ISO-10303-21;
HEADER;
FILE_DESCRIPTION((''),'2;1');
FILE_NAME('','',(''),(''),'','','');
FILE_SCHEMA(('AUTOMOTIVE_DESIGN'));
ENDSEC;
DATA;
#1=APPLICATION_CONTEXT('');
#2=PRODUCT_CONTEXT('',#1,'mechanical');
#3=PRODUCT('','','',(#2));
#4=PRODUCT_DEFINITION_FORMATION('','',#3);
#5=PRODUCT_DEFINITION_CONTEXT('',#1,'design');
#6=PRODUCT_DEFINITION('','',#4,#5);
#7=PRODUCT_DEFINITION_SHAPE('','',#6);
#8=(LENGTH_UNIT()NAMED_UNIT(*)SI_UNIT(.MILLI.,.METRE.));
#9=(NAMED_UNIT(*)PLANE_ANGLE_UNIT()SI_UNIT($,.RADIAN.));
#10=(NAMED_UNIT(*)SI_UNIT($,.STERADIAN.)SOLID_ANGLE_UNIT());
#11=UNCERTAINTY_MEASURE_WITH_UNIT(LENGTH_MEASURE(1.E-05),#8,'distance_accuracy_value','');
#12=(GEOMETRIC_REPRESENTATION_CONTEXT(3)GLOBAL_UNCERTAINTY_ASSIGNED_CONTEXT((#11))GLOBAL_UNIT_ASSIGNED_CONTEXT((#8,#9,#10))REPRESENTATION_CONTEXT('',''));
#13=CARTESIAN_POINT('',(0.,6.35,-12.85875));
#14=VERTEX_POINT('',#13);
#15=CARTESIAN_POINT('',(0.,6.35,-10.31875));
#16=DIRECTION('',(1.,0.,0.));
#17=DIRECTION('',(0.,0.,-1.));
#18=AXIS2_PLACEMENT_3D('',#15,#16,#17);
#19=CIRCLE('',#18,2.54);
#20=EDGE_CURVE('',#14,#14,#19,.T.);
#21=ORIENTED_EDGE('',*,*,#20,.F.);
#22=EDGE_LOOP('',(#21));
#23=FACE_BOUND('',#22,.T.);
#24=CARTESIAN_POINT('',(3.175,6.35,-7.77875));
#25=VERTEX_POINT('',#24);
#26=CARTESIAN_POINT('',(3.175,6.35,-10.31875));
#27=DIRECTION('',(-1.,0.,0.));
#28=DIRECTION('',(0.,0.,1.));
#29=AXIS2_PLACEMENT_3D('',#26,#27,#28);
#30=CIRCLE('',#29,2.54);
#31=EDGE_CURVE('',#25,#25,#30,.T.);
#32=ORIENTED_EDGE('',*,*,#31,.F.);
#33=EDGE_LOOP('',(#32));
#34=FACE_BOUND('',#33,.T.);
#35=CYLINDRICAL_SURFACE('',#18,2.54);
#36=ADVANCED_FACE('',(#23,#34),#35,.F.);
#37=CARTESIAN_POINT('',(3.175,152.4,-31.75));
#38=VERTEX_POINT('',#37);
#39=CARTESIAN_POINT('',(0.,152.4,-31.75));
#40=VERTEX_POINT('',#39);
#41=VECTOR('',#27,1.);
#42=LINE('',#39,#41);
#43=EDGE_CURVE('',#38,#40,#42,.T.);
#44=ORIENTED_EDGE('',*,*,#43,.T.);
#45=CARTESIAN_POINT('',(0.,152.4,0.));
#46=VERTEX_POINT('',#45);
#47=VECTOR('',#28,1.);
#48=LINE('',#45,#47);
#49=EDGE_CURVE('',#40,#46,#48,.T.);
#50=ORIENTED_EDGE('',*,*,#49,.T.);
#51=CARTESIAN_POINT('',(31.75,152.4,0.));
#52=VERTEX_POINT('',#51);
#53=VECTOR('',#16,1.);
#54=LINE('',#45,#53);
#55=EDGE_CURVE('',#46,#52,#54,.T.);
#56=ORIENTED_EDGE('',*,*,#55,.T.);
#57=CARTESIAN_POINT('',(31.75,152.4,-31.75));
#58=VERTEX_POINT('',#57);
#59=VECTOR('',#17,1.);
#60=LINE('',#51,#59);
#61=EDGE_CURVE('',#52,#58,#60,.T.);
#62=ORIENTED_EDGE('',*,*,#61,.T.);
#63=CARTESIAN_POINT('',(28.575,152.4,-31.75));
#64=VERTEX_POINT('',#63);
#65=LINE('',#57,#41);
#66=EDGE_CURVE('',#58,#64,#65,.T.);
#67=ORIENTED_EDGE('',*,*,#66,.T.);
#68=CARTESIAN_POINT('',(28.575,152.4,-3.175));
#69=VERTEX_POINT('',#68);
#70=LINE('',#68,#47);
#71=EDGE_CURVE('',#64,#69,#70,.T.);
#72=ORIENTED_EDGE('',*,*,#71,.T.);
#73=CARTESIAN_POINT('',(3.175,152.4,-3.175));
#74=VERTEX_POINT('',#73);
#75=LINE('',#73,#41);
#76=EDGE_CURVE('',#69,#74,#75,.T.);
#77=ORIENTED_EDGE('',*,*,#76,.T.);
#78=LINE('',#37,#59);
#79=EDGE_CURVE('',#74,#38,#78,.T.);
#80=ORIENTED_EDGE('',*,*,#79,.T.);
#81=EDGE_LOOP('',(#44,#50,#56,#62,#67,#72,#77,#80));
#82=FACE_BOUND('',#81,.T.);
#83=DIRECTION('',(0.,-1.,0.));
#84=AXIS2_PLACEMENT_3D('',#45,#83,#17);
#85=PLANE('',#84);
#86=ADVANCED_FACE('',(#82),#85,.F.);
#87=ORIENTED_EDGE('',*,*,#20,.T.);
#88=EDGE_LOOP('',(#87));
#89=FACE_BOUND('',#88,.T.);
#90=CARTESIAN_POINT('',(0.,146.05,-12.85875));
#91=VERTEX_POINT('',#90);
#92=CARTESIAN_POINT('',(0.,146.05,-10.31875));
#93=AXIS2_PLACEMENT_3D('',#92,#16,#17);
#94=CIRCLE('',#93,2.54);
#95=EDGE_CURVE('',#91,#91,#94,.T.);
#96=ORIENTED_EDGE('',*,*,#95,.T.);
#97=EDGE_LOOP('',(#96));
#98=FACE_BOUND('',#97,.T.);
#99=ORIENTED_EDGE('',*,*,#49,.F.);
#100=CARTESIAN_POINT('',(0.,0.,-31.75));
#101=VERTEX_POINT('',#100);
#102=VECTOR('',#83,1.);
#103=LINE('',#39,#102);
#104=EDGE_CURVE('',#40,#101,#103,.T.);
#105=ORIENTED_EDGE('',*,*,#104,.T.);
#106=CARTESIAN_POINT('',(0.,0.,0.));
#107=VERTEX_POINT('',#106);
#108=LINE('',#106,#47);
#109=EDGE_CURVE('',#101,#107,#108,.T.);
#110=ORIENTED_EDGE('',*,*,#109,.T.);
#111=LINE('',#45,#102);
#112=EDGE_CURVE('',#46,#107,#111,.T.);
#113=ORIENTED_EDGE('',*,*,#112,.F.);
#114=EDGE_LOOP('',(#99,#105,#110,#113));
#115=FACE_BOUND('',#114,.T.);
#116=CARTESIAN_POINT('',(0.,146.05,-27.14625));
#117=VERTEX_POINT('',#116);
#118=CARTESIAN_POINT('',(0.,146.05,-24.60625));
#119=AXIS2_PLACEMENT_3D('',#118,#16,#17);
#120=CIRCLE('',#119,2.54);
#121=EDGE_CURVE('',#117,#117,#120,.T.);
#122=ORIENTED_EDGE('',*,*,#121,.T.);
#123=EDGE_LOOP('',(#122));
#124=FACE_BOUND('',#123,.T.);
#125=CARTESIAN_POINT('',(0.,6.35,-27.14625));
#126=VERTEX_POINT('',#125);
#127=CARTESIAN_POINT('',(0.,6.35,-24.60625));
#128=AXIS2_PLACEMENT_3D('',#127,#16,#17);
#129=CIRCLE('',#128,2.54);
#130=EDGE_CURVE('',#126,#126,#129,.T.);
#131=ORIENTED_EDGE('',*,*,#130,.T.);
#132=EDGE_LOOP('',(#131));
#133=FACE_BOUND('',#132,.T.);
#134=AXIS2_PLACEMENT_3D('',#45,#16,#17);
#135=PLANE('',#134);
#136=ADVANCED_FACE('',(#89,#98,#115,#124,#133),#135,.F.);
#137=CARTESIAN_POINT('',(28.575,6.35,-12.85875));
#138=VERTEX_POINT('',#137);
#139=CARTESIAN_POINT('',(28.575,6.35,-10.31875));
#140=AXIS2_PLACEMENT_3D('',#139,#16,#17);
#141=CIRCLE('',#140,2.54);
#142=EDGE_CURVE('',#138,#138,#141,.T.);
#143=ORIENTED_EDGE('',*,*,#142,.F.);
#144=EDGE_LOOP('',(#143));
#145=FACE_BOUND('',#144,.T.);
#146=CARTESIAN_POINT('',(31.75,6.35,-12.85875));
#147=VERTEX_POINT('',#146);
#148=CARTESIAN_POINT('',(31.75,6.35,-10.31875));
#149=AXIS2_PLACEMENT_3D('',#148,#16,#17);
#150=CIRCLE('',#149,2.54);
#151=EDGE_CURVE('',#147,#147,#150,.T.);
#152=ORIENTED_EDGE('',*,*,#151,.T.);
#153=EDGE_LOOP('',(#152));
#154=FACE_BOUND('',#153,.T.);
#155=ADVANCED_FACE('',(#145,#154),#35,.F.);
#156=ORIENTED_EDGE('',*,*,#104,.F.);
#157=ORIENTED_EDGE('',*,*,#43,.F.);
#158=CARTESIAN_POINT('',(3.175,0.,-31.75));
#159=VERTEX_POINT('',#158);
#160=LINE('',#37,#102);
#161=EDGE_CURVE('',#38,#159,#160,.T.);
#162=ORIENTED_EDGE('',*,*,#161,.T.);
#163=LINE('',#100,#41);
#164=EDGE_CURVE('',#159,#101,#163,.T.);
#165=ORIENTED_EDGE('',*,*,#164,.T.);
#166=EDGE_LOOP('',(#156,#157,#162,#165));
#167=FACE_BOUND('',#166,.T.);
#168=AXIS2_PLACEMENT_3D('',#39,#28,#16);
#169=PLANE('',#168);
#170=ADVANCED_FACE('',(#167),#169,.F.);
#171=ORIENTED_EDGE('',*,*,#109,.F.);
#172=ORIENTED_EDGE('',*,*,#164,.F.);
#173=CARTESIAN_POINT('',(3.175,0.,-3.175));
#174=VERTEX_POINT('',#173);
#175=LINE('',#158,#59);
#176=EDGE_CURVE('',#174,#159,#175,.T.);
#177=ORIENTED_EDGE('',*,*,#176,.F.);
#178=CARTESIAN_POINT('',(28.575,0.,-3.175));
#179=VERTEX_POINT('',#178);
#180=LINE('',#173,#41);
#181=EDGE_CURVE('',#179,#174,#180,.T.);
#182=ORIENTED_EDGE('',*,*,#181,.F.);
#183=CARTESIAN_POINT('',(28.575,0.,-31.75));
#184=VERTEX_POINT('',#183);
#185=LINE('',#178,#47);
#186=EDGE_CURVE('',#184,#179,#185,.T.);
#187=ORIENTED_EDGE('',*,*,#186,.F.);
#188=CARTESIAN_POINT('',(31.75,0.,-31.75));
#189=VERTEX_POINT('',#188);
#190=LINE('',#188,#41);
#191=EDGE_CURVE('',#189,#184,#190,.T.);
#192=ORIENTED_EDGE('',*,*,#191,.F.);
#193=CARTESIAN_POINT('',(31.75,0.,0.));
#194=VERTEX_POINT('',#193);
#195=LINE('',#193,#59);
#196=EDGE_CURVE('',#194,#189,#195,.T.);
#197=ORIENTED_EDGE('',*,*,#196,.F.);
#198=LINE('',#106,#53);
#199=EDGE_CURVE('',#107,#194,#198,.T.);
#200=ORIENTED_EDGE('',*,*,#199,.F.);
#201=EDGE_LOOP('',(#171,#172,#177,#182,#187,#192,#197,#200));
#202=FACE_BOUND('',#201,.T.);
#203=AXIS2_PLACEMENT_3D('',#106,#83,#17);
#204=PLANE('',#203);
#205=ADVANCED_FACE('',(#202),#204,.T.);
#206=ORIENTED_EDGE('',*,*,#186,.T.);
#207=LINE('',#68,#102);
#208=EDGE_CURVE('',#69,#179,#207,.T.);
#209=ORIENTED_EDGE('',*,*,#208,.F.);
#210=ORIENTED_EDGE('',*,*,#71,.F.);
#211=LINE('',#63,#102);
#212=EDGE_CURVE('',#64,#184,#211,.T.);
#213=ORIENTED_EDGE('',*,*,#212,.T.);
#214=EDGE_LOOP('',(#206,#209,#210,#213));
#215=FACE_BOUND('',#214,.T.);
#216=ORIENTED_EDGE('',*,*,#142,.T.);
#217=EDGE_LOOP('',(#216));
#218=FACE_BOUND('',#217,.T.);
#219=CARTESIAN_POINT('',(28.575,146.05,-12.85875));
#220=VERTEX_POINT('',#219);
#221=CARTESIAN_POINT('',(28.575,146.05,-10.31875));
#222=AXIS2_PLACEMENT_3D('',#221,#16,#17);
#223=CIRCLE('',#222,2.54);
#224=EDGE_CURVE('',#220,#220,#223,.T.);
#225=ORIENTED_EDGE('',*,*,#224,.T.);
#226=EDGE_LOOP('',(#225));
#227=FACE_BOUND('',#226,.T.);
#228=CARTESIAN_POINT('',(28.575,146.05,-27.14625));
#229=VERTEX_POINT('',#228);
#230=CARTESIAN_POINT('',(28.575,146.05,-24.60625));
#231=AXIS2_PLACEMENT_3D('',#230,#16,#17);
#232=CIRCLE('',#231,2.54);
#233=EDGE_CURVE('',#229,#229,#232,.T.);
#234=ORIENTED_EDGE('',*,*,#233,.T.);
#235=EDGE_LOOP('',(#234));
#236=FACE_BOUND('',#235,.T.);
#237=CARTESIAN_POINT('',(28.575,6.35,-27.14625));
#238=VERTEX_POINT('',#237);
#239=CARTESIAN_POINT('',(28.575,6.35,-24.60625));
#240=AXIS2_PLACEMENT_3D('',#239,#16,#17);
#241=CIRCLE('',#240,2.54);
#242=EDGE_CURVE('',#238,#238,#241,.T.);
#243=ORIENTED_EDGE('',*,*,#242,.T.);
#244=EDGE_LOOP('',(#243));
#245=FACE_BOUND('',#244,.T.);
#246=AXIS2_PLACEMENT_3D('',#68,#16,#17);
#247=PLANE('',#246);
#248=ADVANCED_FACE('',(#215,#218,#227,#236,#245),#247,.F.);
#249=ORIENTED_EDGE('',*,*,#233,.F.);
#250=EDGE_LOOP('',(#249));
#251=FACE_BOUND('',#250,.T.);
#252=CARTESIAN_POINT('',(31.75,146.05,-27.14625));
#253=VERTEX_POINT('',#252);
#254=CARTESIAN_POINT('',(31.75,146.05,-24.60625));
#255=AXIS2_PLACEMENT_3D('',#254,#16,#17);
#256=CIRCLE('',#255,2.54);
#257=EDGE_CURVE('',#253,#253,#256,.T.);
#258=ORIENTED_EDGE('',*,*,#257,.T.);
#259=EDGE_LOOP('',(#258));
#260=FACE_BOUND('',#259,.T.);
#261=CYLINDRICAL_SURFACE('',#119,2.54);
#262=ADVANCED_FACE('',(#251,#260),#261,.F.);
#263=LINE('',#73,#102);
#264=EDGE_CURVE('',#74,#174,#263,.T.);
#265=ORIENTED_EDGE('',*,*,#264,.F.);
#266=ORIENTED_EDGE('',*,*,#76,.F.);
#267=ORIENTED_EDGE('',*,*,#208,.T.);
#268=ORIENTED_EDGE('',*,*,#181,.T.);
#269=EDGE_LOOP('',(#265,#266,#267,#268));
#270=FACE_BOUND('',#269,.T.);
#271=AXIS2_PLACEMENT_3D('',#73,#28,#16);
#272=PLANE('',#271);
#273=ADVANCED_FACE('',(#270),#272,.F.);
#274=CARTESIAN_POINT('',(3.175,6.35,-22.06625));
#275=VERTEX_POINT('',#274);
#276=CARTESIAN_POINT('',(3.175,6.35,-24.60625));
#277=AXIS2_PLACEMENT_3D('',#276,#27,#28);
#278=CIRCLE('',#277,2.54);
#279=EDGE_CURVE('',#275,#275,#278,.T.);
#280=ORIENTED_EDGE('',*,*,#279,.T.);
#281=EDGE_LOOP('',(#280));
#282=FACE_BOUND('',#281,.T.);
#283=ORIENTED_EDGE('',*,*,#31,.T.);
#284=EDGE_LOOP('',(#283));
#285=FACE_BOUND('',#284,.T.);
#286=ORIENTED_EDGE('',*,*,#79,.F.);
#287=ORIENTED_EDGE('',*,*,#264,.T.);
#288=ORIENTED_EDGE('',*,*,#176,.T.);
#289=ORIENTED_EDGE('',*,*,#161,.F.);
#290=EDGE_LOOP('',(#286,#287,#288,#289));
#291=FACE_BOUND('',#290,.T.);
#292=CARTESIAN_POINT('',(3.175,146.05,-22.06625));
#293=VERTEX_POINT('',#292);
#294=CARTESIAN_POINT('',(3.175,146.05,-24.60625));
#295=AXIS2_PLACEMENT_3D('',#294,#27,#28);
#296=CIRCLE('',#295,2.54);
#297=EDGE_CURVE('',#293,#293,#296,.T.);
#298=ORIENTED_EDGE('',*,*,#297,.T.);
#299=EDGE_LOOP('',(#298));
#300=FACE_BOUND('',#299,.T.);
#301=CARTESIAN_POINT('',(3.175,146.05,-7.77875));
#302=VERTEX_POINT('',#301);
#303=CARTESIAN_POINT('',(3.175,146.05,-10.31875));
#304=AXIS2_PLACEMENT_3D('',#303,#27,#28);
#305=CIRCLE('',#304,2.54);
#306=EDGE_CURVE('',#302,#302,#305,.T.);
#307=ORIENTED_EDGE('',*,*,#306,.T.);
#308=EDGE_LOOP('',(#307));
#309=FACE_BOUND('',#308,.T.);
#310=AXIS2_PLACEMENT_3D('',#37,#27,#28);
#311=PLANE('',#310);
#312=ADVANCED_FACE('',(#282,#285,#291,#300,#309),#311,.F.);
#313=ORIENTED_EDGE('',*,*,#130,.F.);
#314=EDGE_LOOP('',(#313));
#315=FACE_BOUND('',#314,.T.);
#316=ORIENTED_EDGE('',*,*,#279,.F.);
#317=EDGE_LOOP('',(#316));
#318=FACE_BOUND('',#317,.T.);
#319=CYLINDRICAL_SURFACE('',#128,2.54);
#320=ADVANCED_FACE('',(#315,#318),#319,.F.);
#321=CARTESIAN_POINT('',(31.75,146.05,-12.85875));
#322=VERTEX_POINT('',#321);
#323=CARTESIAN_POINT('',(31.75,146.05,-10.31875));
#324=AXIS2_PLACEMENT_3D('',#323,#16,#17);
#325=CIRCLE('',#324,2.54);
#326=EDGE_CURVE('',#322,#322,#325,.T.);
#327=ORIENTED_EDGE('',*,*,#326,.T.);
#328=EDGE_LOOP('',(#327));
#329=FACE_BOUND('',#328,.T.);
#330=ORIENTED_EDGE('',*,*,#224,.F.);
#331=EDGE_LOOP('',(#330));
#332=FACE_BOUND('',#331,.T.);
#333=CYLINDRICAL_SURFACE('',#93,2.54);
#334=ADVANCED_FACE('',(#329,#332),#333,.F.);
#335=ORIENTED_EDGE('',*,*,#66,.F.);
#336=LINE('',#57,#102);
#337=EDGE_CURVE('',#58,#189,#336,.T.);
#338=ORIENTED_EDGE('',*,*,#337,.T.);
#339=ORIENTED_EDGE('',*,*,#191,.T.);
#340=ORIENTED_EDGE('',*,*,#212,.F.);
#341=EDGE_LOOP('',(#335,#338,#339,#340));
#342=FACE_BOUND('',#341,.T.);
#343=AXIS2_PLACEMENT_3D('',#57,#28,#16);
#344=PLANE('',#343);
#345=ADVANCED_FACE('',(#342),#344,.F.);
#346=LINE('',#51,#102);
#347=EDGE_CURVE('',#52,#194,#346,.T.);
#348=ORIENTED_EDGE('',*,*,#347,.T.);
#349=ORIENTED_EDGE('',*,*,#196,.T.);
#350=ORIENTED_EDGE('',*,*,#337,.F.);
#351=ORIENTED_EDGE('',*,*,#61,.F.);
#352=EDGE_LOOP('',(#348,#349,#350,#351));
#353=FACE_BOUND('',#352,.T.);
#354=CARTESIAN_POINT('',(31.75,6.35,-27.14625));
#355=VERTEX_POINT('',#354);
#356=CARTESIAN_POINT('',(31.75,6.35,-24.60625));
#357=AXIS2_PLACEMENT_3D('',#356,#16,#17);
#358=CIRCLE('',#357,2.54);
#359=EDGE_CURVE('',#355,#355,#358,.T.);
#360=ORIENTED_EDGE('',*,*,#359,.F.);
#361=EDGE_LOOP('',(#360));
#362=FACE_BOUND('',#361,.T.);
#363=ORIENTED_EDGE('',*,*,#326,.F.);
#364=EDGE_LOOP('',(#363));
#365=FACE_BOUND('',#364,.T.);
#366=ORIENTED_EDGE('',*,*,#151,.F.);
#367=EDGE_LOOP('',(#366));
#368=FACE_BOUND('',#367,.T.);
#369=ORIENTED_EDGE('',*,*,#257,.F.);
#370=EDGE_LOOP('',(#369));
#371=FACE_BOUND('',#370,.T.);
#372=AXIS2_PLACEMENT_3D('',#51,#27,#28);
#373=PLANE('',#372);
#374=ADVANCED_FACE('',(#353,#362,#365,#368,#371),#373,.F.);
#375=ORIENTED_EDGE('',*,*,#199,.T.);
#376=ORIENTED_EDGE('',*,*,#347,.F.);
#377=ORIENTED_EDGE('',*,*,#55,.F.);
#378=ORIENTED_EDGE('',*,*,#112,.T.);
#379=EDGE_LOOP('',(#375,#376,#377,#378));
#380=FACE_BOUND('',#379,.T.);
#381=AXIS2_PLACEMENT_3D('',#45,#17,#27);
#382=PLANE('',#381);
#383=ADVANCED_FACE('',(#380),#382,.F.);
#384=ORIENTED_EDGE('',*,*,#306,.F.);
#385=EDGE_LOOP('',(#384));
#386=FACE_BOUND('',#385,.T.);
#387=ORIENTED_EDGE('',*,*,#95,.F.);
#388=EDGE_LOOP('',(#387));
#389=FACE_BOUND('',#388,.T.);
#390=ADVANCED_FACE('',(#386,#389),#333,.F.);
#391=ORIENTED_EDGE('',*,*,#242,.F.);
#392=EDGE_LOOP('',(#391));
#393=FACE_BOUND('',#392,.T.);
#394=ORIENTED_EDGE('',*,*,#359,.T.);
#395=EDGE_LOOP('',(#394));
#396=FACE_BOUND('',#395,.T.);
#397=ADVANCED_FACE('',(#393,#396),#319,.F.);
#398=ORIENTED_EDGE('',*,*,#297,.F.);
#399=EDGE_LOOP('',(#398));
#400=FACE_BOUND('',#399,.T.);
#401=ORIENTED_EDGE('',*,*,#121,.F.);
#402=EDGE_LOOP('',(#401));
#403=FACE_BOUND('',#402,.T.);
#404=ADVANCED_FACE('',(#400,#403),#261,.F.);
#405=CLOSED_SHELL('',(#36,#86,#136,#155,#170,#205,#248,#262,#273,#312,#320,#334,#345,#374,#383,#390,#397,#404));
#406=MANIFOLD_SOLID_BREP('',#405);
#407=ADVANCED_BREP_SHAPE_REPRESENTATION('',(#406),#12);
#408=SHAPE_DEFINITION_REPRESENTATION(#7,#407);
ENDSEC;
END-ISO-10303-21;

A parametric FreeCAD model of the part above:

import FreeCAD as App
import Part
import Sketcher
Q = App.Units.Quantity

doc = App.newDocument("Part")
body = doc.addObject("PartDesign::Body", "Body")

# Sketch on XZ plane
sketch1 = body.newObject("Sketcher::SketchObject", "Sketch")
sketch1.AttachmentSupport = (doc.getObject("XZ_Plane"), [""])
sketch1.MapMode = "FlatFace"
sketch1.addGeometry(Part.LineSegment(App.Vector(0, 0, 0), App.Vector(31.75, 0, 0)), False)
sketch1.addGeometry(Part.LineSegment(App.Vector(31.75, 0, 0), App.Vector(31.75, -31.75, 0)), False)
sketch1.addGeometry(Part.LineSegment(App.Vector(31.75, -31.75, 0), App.Vector(28.575, -31.75, 0)), False)
sketch1.addGeometry(Part.LineSegment(App.Vector(28.575, -31.75, 0), App.Vector(28.575, -3.175, 0)), False)
sketch1.addGeometry(Part.LineSegment(App.Vector(28.575, -3.175, 0), App.Vector(3.175, -3.175, 0)), False)
sketch1.addGeometry(Part.LineSegment(App.Vector(3.175, -3.175, 0), App.Vector(3.175, -31.75, 0)), False)
sketch1.addGeometry(Part.LineSegment(App.Vector(3.175, -31.75, 0), App.Vector(0, -31.75, 0)), False)
sketch1.addGeometry(Part.LineSegment(App.Vector(0, -31.75, 0), App.Vector(0, 0, 0)), False)
sketch1.addConstraint(Sketcher.Constraint("Coincident", 0, 2, 1, 1))
sketch1.addConstraint(Sketcher.Constraint("Coincident", 1, 2, 2, 1))
sketch1.addConstraint(Sketcher.Constraint("Coincident", 2, 2, 3, 1))
sketch1.addConstraint(Sketcher.Constraint("Coincident", 3, 2, 4, 1))
sketch1.addConstraint(Sketcher.Constraint("Coincident", 4, 2, 5, 1))
sketch1.addConstraint(Sketcher.Constraint("Coincident", 5, 2, 6, 1))
sketch1.addConstraint(Sketcher.Constraint("Coincident", 6, 2, 7, 1))
sketch1.addConstraint(Sketcher.Constraint("Coincident", 7, 2, 0, 1))
sketch1.addConstraint(Sketcher.Constraint("Horizontal", 0))
sketch1.addConstraint(Sketcher.Constraint("Vertical", 1))
sketch1.addConstraint(Sketcher.Constraint("Horizontal", 2))
sketch1.addConstraint(Sketcher.Constraint("Vertical", 3))
sketch1.addConstraint(Sketcher.Constraint("Horizontal", 4))
sketch1.addConstraint(Sketcher.Constraint("Vertical", 5))
sketch1.addConstraint(Sketcher.Constraint("Horizontal", 6))
sketch1.addConstraint(Sketcher.Constraint("Vertical", 7))
sketch1.addConstraint(Sketcher.Constraint("Coincident", 7, 2, -1, 1))
sketch1.addConstraint(Sketcher.Constraint("Horizontal", 2, 2, 5, 2))
sketch1.addConstraint(Sketcher.Constraint("Equal", 2, 6))
sketch1.addConstraint(Sketcher.Constraint("Equal", 0, 1))
sketch1.addConstraint(Sketcher.Constraint("DistanceX", 4, 2, 4, 1, Q("1 in")))
sketch1.addConstraint(Sketcher.Constraint("DistanceX", 0, 1, 0, 2, Q("1.25 in")))
sketch1.addConstraint(Sketcher.Constraint("DistanceY", 3, 1, 3, 2, Q("1.125 in")))
pad1 = body.newObject("PartDesign::Pad", "Pad")
pad1.Profile = sketch1
pad1.Length = Q("6 in")
pad1.Reversed = True

# Sketch on YZ plane
sketch2 = body.newObject("Sketcher::SketchObject", "Sketch001")
sketch2.AttachmentSupport = (doc.getObject("YZ_Plane"), [""])
sketch2.MapMode = "FlatFace"
sketch2.AttachmentOffset = App.Placement(App.Vector(0, 0, 1.25 * 25.4), App.Rotation())
sketch2.addGeometry(Part.Circle(App.Vector(6.35, -24.60625, 0), App.Vector(0, 0, 1), 2.54), False)
sketch2.addGeometry(Part.Circle(App.Vector(6.35, -10.31875, 0), App.Vector(0, 0, 1), 2.54), False)
sketch2.addGeometry(Part.Circle(App.Vector(146.05, -24.60625, 0), App.Vector(0, 0, 1), 2.54), False)
sketch2.addGeometry(Part.Circle(App.Vector(146.05, -10.31875, 0), App.Vector(0, 0, 1), 2.54), False)
sketch2.addConstraint(Sketcher.Constraint("Equal", 0, 1))
sketch2.addConstraint(Sketcher.Constraint("Equal", 1, 2))
sketch2.addConstraint(Sketcher.Constraint("Equal", 2, 3))
sketch2.addConstraint(Sketcher.Constraint("Horizontal", 0, 3, 2, 3))
sketch2.addConstraint(Sketcher.Constraint("Horizontal", 1, 3, 3, 3))
sketch2.addConstraint(Sketcher.Constraint("Vertical", 0, 3, 1, 3))
sketch2.addConstraint(Sketcher.Constraint("Vertical", 2, 3, 3, 3))
sketch2.addConstraint(Sketcher.Constraint("Diameter", 0, Q("0.2 in")))
sketch2.addConstraint(Sketcher.Constraint("DistanceX", 0, 3, 2, 3, Q("5.5 in")))
sketch2.addConstraint(Sketcher.Constraint("DistanceX", -1, 1, 0, 3, Q("0.25 in")))
sketch2.addConstraint(Sketcher.Constraint("DistanceY", 0, 3, -1, 1, Q("0.96875 in")))
sketch2.addConstraint(Sketcher.Constraint("DistanceY", 1, 3, -1, 1, Q("0.40625 in")))
pocket1 = body.newObject("PartDesign::Pocket", "Pocket")
pocket1.Profile = sketch2
pocket1.Length = Q("1.25 in")

doc.recompute()
